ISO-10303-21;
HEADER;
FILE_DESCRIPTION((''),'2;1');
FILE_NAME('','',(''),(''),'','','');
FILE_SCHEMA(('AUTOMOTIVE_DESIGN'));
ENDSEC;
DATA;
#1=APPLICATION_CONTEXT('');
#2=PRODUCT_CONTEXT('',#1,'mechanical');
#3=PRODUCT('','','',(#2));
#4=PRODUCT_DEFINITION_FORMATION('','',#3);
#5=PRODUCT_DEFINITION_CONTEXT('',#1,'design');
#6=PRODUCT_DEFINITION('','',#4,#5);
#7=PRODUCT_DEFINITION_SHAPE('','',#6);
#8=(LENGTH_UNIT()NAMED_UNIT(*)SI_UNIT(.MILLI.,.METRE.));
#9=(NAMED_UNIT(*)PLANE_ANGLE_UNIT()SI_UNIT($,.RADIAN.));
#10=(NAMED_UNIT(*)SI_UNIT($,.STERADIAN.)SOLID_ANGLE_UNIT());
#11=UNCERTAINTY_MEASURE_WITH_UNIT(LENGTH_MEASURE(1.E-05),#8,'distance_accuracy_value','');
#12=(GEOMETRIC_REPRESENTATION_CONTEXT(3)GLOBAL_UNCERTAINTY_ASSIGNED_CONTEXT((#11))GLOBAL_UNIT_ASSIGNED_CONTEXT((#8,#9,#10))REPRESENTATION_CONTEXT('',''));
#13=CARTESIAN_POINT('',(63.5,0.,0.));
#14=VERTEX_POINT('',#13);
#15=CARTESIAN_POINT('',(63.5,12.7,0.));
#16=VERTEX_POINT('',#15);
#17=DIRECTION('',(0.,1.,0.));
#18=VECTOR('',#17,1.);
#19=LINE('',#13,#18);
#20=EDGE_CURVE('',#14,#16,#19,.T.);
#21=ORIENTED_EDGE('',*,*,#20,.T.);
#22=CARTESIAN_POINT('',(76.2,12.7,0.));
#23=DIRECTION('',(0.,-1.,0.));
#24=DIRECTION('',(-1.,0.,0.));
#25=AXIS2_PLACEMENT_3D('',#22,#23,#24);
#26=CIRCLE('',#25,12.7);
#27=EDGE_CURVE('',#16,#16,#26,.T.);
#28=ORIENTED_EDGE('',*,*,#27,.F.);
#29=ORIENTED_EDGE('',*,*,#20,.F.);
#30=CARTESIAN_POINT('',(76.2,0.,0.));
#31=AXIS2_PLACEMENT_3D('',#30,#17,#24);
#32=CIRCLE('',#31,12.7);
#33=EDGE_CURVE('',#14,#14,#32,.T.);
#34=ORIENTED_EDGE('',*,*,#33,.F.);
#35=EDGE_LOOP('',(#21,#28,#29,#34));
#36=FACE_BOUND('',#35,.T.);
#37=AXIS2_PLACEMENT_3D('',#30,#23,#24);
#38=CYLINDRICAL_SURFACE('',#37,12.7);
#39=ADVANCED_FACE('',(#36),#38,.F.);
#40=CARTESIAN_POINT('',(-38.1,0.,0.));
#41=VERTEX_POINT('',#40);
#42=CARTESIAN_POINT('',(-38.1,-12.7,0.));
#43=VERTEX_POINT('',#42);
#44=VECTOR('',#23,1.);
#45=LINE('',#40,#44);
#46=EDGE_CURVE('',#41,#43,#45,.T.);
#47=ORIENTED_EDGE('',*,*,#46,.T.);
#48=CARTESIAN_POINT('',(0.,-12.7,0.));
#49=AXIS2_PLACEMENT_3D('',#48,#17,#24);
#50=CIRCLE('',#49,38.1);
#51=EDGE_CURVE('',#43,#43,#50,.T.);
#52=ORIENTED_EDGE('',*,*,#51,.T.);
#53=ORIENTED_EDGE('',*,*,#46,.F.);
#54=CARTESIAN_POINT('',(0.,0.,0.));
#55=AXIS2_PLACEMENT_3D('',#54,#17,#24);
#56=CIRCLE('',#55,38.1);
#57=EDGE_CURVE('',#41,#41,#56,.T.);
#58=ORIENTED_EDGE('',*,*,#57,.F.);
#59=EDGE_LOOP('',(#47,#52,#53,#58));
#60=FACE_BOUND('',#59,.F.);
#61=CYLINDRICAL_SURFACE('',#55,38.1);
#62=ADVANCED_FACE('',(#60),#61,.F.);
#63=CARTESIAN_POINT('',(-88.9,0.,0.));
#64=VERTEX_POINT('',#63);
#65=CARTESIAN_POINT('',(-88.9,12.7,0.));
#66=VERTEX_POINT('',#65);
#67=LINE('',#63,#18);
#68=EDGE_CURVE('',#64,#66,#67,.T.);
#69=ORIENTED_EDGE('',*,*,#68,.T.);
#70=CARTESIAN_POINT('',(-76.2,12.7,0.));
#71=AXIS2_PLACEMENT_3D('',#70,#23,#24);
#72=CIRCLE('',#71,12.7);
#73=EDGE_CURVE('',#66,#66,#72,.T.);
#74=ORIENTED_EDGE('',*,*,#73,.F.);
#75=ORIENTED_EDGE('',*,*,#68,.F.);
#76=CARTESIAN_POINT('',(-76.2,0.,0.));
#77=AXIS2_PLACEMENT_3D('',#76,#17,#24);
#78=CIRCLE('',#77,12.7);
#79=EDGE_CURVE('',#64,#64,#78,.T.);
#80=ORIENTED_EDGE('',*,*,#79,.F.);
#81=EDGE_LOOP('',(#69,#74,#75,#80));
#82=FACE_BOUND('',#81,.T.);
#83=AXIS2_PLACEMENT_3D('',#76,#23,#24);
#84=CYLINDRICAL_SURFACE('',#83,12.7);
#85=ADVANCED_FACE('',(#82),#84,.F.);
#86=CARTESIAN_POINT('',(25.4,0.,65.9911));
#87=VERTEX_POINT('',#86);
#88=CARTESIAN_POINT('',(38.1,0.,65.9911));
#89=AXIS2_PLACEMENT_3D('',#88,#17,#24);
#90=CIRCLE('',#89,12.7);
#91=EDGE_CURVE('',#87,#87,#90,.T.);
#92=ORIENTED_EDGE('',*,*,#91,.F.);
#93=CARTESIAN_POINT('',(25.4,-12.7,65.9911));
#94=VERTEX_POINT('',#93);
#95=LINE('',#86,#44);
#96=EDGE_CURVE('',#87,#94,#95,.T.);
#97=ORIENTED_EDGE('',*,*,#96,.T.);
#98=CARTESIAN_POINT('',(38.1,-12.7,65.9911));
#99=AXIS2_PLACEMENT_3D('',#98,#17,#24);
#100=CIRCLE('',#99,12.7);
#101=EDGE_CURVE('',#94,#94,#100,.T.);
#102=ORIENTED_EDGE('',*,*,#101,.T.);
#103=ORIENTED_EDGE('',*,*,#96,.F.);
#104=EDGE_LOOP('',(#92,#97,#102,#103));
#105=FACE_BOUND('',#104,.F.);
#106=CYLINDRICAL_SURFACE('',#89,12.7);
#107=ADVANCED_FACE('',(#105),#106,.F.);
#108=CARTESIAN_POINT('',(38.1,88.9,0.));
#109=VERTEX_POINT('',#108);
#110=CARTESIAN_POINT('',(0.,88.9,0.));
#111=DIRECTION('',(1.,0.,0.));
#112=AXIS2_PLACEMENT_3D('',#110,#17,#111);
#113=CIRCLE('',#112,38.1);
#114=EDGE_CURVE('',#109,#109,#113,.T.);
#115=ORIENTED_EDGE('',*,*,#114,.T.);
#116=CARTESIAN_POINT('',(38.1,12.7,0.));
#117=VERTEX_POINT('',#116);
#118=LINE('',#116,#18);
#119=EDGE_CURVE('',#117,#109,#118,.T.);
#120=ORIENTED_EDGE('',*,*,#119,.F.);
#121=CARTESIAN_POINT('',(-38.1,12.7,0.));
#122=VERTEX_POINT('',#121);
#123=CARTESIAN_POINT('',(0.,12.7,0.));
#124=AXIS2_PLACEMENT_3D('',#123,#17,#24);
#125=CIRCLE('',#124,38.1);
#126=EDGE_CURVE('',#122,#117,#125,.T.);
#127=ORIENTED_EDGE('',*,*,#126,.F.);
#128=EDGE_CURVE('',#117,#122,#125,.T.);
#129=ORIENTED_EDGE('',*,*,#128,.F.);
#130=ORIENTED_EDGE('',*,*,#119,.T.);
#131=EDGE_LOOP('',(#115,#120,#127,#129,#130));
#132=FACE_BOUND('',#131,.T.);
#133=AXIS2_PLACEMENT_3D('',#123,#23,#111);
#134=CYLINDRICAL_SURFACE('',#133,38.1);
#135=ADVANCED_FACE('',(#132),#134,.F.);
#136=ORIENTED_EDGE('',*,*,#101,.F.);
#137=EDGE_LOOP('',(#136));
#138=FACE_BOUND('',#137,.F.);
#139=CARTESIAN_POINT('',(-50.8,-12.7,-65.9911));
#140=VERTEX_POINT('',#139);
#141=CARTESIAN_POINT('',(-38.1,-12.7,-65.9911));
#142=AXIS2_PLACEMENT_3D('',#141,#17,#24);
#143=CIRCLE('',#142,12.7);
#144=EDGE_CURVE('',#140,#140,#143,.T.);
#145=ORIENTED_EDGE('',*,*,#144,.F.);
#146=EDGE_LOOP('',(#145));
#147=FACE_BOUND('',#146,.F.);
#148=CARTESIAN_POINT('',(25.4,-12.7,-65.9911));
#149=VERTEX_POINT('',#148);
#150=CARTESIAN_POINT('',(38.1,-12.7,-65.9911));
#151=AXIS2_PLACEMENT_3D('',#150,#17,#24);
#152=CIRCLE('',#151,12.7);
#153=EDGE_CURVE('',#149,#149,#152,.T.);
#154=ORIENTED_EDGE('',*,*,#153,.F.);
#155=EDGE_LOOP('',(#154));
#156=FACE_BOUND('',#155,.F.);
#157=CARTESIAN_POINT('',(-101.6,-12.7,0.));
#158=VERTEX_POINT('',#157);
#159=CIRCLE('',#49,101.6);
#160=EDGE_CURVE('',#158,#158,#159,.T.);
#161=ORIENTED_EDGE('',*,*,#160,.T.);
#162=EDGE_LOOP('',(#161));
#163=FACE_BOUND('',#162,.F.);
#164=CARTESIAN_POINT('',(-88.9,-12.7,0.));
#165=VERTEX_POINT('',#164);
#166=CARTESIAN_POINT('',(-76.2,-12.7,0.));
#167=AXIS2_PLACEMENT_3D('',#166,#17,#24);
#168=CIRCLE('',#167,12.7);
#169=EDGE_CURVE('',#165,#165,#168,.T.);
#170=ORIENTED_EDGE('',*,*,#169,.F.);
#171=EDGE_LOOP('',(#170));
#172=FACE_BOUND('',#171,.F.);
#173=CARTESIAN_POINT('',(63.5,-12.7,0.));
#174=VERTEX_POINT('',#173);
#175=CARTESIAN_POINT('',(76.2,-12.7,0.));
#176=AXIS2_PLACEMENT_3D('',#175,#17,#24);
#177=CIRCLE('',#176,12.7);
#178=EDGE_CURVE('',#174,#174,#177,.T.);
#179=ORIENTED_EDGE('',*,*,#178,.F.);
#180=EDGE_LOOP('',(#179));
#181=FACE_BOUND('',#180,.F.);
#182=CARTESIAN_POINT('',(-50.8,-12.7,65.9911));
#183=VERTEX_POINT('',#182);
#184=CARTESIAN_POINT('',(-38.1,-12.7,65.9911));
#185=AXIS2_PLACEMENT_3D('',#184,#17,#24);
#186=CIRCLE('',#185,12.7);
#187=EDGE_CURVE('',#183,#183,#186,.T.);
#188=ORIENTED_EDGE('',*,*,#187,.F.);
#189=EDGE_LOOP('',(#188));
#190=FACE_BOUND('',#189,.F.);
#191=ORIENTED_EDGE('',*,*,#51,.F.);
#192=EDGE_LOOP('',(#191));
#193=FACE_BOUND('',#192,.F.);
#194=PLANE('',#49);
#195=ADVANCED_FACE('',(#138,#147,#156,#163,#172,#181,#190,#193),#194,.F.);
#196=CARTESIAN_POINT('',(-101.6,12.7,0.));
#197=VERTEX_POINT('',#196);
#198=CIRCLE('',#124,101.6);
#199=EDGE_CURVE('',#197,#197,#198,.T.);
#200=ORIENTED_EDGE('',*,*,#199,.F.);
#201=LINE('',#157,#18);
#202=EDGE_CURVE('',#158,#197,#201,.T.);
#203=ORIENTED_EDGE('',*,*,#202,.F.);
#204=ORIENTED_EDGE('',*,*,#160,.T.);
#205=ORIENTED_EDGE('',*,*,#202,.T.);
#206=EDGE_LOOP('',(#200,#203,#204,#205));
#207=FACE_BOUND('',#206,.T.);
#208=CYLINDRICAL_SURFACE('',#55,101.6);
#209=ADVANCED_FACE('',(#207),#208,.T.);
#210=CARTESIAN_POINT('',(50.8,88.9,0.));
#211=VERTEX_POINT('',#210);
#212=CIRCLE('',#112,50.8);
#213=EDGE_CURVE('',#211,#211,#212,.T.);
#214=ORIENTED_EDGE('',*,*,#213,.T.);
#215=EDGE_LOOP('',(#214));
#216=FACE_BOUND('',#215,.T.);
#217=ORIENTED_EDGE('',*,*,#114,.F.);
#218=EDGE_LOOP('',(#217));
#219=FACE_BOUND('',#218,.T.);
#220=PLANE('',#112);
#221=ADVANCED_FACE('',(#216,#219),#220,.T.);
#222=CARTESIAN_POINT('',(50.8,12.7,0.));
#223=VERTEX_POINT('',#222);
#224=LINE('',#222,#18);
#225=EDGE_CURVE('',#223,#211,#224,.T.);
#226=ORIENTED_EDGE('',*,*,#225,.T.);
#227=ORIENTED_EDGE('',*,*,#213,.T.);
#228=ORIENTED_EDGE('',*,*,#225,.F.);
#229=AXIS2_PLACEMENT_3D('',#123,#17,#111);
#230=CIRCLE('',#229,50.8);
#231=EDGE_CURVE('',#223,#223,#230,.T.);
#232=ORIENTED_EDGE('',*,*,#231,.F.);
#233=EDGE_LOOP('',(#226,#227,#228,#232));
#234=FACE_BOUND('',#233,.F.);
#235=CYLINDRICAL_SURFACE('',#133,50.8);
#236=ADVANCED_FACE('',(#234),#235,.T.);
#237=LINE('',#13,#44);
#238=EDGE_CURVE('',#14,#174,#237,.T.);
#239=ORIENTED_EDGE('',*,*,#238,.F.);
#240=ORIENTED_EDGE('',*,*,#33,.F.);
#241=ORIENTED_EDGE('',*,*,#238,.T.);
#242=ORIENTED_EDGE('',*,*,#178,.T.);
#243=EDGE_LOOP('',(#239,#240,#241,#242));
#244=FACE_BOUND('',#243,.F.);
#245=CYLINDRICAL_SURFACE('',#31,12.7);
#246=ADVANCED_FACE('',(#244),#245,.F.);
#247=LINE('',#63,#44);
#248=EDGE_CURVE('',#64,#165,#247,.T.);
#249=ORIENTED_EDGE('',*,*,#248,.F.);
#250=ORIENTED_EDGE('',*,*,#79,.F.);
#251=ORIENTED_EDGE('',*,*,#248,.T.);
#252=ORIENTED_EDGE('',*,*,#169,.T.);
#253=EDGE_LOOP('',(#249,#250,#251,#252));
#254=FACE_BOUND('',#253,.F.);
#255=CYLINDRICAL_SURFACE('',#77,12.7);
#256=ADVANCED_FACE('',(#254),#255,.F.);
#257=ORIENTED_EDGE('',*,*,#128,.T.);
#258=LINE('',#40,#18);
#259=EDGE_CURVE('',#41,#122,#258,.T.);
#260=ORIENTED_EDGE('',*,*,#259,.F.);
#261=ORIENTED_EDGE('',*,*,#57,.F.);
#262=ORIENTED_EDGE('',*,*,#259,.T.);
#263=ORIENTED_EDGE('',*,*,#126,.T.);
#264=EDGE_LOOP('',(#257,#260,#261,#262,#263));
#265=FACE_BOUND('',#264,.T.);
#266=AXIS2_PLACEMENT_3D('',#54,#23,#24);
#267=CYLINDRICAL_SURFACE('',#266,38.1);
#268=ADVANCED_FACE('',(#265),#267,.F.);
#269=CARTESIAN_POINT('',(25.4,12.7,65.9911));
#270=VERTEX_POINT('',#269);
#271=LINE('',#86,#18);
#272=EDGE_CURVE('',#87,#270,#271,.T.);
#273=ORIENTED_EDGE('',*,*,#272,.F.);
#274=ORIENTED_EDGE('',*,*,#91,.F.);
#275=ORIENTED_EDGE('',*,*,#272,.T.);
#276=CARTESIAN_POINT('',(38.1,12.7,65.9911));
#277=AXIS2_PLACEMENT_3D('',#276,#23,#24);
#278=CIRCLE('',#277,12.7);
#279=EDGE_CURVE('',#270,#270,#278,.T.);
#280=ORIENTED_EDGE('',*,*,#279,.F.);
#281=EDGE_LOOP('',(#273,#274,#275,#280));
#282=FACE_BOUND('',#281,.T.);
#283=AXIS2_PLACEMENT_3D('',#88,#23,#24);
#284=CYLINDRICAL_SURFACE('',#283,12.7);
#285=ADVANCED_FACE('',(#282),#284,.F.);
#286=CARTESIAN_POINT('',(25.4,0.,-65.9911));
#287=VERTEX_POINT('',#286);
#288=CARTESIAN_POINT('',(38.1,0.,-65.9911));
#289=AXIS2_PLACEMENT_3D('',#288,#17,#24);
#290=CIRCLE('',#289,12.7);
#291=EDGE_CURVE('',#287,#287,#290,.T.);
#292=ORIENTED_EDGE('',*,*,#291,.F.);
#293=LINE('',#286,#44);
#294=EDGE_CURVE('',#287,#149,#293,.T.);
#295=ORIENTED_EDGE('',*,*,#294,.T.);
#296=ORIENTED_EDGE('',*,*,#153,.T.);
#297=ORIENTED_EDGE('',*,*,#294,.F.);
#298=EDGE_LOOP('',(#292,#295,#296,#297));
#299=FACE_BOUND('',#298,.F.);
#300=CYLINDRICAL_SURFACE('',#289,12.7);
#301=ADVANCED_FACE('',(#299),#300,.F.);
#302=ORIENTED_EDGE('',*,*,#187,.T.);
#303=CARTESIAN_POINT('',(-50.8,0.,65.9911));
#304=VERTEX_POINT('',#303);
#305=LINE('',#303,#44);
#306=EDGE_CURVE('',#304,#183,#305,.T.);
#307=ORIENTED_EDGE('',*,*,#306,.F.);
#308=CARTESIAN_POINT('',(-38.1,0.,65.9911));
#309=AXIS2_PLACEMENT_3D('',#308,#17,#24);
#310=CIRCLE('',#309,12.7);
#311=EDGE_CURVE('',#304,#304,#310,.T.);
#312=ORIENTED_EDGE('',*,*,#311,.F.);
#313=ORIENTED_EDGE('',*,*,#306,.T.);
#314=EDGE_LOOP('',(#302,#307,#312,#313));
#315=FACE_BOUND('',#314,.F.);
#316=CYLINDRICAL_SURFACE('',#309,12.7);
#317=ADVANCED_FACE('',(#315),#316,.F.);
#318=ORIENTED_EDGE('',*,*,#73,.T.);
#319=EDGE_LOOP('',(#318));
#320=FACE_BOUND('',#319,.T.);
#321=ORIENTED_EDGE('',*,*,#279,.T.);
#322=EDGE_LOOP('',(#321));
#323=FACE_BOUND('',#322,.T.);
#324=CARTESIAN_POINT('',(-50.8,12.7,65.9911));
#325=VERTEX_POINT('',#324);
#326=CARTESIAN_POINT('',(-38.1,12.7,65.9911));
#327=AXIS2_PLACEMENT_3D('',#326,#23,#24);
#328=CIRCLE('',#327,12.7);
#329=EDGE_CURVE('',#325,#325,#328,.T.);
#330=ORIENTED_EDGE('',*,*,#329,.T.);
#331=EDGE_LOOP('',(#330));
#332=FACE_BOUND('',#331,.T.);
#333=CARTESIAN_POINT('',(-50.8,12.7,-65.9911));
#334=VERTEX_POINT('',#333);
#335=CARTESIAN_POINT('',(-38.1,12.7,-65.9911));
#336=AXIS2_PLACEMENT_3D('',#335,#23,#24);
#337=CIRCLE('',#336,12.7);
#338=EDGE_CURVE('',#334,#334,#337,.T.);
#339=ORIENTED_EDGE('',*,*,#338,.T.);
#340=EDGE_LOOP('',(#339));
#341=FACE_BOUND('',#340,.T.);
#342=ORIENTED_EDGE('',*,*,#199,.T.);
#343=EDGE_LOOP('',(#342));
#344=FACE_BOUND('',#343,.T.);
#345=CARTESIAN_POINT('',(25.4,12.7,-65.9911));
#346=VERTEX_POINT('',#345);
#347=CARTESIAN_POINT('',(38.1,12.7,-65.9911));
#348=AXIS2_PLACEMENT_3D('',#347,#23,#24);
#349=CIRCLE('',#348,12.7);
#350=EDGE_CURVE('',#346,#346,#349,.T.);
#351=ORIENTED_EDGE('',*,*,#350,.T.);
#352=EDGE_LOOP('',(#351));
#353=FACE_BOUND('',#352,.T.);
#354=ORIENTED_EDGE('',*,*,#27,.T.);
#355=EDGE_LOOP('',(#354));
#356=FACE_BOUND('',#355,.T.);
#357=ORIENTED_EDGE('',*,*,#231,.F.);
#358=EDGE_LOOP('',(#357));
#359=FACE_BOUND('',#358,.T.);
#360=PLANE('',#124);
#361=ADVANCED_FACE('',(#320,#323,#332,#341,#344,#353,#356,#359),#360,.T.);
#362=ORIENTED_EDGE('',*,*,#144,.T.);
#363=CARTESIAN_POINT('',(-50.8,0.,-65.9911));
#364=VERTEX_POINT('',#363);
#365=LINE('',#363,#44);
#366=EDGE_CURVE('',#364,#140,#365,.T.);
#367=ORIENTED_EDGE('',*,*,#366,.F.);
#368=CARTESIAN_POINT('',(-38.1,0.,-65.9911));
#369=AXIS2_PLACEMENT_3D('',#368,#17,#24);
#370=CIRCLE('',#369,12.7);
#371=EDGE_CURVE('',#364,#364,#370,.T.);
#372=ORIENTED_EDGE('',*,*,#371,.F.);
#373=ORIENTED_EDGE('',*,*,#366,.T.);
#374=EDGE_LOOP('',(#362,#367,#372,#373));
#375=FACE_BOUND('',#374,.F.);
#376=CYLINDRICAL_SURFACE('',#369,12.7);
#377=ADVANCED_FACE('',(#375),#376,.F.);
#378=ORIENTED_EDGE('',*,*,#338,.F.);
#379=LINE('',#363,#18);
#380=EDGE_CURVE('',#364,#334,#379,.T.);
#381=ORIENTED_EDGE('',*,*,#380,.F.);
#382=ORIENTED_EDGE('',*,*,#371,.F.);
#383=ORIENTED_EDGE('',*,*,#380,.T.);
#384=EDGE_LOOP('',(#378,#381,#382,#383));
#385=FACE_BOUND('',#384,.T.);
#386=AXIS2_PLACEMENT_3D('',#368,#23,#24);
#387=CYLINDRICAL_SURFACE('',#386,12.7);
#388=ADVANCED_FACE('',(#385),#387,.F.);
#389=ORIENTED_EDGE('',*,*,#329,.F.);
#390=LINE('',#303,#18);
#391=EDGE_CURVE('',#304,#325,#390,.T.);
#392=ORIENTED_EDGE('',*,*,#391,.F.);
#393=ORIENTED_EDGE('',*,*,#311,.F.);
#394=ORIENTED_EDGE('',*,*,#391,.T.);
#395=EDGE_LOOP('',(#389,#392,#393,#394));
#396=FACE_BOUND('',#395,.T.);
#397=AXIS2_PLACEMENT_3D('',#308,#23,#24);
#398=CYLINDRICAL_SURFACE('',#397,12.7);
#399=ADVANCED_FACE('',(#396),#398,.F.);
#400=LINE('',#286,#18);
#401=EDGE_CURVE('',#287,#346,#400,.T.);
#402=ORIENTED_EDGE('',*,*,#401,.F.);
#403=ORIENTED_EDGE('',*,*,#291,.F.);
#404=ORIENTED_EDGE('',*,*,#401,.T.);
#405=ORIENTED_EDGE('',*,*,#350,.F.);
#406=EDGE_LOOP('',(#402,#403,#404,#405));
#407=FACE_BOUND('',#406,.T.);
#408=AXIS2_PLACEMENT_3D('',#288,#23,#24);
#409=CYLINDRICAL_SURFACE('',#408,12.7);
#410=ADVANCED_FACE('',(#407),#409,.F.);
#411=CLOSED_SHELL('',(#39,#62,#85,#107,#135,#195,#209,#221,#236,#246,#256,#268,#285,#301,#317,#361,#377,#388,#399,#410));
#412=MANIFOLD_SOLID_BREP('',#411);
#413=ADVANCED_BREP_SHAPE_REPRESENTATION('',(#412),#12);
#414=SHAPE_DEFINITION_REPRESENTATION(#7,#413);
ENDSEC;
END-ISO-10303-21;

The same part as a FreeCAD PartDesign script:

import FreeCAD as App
import Part
import Sketcher
Q = App.Units.Quantity

doc = App.newDocument("Part")
params = doc.addObject("Spreadsheet::Sheet", "Params")
for row, (alias, value) in enumerate([
    ("sketch1_diameter", "8 in"),
    ("sketch1_diameter2", "1 in"),
    ("sketch1_diameter3", "3 in"),
    ("pad1_length", "1 in"),
    ("sketch2_diameter", "4 in"),
    ("sketch2_diameter2", "3 in"),
    ("pad2_length", "3 in"),
], start=1):
    params.set(f"A{row}", alias)
    params.set(f"B{row}", "=" + value)
    params.setAlias(f"B{row}", alias)

body = doc.addObject("PartDesign::Body", "Body")

# Sketch on XZ plane
sketch1 = body.newObject("Sketcher::SketchObject", "Sketch")
sketch1.AttachmentSupport = (doc.getObject("XZ_Plane"), [""])
sketch1.MapMode = "FlatFace"
sketch1.addGeometry(Part.Circle(App.Vector(0, 0, 0), App.Vector(0, 0, 1), 102), False)
sketch1.addGeometry(Part.Circle(App.Vector(-38, 66, 0), App.Vector(0, 0, 1), 13), False)
sketch1.addGeometry(Part.Circle(App.Vector(38, 66, 0), App.Vector(0, 0, 1), 13), False)
sketch1.addGeometry(Part.Circle(App.Vector(76, 0, 0), App.Vector(0, 0, 1), 13), False)
sketch1.addGeometry(Part.Circle(App.Vector(38, -66, 0), App.Vector(0, 0, 1), 13), False)
sketch1.addGeometry(Part.Circle(App.Vector(-38, -66, 0), App.Vector(0, 0, 1), 13), False)
sketch1.addGeometry(Part.Circle(App.Vector(-76, 0, 0), App.Vector(0, 0, 1), 13), False)
sketch1.addGeometry(Part.Circle(App.Vector(0, 0, 0), App.Vector(0, 0, 1), 38), False)
sketch1.addConstraint(Sketcher.Constraint("Coincident", 0, 3, -1, 1))
sketch1.addConstraint(Sketcher.Constraint("Coincident", 7, 3, -1, 1))
sketch1.addConstraint(Sketcher.Constraint("Equal", 1, 2))
sketch1.addConstraint(Sketcher.Constraint("Equal", 2, 3))
sketch1.addConstraint(Sketcher.Constraint("Equal", 3, 4))
sketch1.addConstraint(Sketcher.Constraint("Equal", 4, 5))
sketch1.addConstraint(Sketcher.Constraint("Equal", 5, 6))
sketch1.addConstraint(Sketcher.Constraint("Symmetric", 1, 3, 4, 3, -1, 1))
sketch1.addConstraint(Sketcher.Constraint("Symmetric", 2, 3, 5, 3, -1, 1))
sketch1.addConstraint(Sketcher.Constraint("Symmetric", 3, 3, 6, 3, -1, 1))
sketch1.addConstraint(Sketcher.Constraint("Symmetric", 1, 3, 2, 3, -2))
sketch1.addConstraint(Sketcher.Constraint("PointOnObject", 3, 3, -1))
sketch1.addConstraint(Sketcher.Constraint("Diameter", 0, Q("8 in")))
sketch1.addConstraint(Sketcher.Constraint("Diameter", 1, Q("1 in")))
sketch1.addConstraint(Sketcher.Constraint("Diameter", 7, Q("3 in")))
sketch1.addConstraint(Sketcher.Constraint("DistanceX", -1, 1, 3, 3, Q("3 in")))
sketch1.addConstraint(Sketcher.Constraint("DistanceX", 1, 3, 2, 3, Q("3 in")))
sketch1.addConstraint(Sketcher.Constraint("DistanceY", -1, 1, 1, 3, Q("65.991 mm")))
sketch1.setExpression("Constraints[12]", "Params.sketch1_diameter")
sketch1.setExpression("Constraints[13]", "Params.sketch1_diameter2")
sketch1.setExpression("Constraints[14]", "Params.sketch1_diameter3")
pad1 = body.newObject("PartDesign::Pad", "Pad")
pad1.Profile = sketch1
pad1.setExpression("Length", "Params.pad1_length")
pad1.Midplane = True

# Sketch on XZ plane
sketch2 = body.newObject("Sketcher::SketchObject", "Sketch001")
sketch2.AttachmentSupport = (doc.getObject("XZ_Plane"), [""])
sketch2.MapMode = "FlatFace"
sketch2.AttachmentOffset = App.Placement(App.Vector(0, 0, -0.5 * 25.4), App.Rotation())
sketch2.addGeometry(Part.Circle(App.Vector(0, 0, 0), App.Vector(0, 0, 1), 51), False)
sketch2.addGeometry(Part.Circle(App.Vector(0, 0, 0), App.Vector(0, 0, 1), 38), False)
sketch2.addConstraint(Sketcher.Constraint("Coincident", 0, 3, -1, 1))
sketch2.addConstraint(Sketcher.Constraint("Coincident", 1, 3, -1, 1))
sketch2.addConstraint(Sketcher.Constraint("Diameter", 0, Q("4 in")))
sketch2.addConstraint(Sketcher.Constraint("Diameter", 1, Q("3 in")))
sketch2.setExpression("Constraints[2]", "Params.sketch2_diameter")
sketch2.setExpression("Constraints[3]", "Params.sketch2_diameter2")
pad2 = body.newObject("PartDesign::Pad", "Pad001")
pad2.Profile = sketch2
pad2.setExpression("Length", "Params.pad2_length")
pad2.Reversed = True

doc.recompute()
